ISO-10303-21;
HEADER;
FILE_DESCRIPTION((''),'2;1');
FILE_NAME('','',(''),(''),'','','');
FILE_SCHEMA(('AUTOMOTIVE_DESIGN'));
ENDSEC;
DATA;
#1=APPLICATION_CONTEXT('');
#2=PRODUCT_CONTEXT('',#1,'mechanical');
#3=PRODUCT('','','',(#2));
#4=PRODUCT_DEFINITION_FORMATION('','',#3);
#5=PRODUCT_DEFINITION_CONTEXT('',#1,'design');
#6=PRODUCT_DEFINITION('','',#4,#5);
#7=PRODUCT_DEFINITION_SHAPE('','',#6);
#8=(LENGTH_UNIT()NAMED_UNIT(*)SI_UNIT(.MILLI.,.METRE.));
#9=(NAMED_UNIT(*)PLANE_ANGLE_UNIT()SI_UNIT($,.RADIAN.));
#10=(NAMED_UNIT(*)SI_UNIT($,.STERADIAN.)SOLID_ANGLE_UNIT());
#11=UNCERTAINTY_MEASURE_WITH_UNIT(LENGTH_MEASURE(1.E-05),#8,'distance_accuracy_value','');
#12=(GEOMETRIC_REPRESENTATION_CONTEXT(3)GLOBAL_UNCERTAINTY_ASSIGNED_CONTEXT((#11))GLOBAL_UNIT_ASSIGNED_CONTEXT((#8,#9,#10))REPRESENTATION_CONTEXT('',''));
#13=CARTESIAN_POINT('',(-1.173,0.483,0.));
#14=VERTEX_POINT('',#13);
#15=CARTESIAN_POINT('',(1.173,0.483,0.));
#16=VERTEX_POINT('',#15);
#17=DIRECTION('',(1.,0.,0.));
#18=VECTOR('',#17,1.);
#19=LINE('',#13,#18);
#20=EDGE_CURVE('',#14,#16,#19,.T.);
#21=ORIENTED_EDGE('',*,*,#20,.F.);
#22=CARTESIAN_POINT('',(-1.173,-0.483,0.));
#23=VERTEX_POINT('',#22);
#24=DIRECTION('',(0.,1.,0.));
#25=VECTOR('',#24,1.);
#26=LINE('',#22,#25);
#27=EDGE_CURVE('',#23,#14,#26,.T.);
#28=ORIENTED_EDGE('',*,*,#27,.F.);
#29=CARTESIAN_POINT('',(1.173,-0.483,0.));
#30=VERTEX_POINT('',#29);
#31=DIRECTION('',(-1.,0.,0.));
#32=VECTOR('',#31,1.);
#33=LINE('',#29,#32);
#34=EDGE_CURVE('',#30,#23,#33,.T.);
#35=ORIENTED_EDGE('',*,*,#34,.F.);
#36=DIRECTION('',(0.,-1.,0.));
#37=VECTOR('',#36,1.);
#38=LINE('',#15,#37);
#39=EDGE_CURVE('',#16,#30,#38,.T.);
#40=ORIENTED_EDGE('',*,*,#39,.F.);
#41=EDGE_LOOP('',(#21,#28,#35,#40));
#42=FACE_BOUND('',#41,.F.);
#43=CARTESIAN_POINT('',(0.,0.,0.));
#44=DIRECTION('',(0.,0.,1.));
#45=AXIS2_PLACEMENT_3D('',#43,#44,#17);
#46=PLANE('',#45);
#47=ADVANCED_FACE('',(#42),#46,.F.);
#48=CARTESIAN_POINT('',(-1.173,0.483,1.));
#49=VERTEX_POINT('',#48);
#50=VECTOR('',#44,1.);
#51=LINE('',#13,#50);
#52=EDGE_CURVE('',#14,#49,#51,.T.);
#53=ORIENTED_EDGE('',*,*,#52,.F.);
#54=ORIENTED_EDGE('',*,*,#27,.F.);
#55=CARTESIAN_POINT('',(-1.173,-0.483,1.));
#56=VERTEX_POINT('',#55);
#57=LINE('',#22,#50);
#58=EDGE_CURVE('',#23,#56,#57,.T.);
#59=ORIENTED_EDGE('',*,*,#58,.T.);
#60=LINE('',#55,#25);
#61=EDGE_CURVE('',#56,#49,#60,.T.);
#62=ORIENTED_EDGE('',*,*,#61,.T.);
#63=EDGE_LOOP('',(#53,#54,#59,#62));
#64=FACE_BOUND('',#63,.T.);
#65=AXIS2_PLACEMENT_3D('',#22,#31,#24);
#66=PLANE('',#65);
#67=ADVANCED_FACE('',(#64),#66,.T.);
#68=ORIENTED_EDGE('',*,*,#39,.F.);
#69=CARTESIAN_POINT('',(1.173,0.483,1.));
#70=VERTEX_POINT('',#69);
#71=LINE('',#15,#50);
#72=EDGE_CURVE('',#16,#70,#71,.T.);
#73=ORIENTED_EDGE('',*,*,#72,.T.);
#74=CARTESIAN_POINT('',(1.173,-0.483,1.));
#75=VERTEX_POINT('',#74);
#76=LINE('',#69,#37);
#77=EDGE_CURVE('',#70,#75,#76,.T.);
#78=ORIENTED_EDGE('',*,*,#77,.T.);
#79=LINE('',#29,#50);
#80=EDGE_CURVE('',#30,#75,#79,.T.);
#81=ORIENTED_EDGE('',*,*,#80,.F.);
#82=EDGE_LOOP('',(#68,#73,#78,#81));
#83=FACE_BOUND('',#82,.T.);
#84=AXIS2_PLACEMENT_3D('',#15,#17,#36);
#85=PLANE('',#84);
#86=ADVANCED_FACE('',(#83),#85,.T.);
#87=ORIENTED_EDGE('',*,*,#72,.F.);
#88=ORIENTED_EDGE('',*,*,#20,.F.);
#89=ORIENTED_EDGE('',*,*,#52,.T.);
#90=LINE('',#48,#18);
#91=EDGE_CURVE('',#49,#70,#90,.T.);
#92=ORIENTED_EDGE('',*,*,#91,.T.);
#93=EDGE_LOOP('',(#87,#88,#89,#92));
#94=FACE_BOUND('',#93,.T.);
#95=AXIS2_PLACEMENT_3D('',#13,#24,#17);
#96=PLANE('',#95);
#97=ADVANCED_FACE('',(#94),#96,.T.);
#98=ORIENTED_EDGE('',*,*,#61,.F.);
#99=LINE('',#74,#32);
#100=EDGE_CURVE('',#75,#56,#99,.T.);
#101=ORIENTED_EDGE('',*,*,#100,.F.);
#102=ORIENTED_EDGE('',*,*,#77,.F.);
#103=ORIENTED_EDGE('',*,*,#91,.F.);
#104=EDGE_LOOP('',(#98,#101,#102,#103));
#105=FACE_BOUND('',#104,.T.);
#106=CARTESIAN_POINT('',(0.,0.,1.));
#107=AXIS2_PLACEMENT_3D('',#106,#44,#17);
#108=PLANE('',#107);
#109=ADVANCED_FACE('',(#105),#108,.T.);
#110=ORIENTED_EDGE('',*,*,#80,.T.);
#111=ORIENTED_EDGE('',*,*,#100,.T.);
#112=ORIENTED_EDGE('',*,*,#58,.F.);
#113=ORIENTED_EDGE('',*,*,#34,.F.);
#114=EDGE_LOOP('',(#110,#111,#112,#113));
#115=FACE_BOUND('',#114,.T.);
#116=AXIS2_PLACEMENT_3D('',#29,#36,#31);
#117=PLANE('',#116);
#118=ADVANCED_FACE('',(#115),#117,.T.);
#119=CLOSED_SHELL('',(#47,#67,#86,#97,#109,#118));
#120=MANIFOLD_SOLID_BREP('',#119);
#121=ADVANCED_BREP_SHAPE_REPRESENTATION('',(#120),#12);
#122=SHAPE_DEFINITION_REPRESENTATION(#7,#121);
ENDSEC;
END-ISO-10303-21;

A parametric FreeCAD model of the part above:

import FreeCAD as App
import Part
import Sketcher

V = App.Vector
Q = App.Units.Quantity


def add_polygon(sketch, points):
    """Adds a closed chain of lines whose ends are joined by coincident constraints."""
    first, n = sketch.GeometryCount, len(points)
    for a, b in zip(points, points[1:] + points[:1]):
        sketch.addGeometry(Part.LineSegment(App.Vector(*a, 0), App.Vector(*b, 0)), False)
    for i in range(n):
        sketch.addConstraint(Sketcher.Constraint("Coincident", first + i, 2, first + (i + 1) % n, 1))

doc = App.newDocument("Part")
params = doc.addObject("Spreadsheet::Sheet", "Params")
for row, (alias, value) in enumerate([
    ("pad1_length", "1 mm"),
], start=1):
    params.set(f"A{row}", alias)
    params.set(f"B{row}", "=" + value)
    params.setAlias(f"B{row}", alias)

body = doc.addObject("PartDesign::Body", "Body")

# Sketch on XY plane
sketch1 = body.newObject("Sketcher::SketchObject", "Sketch")
sketch1.AttachmentSupport = (doc.getObject("XY_Plane"), [""])
sketch1.MapMode = "FlatFace"
add_polygon(sketch1, [(1.173, 0.483), (-1.173, 0.483), (-1.173, -0.483), (1.173, -0.483)])  # lines 0-3
sketch1.addConstraint([
    Sketcher.Constraint("Horizontal", 0),
    Sketcher.Constraint("Vertical", 1),
    Sketcher.Constraint("Horizontal", 2),
    Sketcher.Constraint("Vertical", 3),
    Sketcher.Constraint("Symmetric", 0, 2, 2, 2, -1, 1),
    Sketcher.Constraint("DistanceX", 0, 2, 0, 1, Q("2.346 mm")),
    Sketcher.Constraint("DistanceY", 1, 2, 1, 1, Q("0.966 mm")),
])
pad1 = body.newObject("PartDesign::Pad", "Pad")
pad1.Profile = sketch1
pad1.setExpression("Length", "Params.pad1_length")

doc.recompute()
